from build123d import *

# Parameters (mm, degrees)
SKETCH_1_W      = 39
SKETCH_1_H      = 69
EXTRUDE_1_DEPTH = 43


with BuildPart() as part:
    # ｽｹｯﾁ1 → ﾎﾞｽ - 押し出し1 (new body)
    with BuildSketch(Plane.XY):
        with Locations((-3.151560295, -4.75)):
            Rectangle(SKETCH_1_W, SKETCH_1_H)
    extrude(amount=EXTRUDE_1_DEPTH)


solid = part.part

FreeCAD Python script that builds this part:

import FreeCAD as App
import Part
import Sketcher

V = App.Vector

doc = App.newDocument("Part")
body = doc.addObject("PartDesign::Body", "Body")

# Sketch on XY plane
sketch1 = doc.addObject("Sketcher::SketchObject", "Sketch")
body.addObject(sketch1)
sketch1.AttachmentSupport = (doc.XY_Plane, [""])
sketch1.MapMode = "FlatFace"
sketch1.addGeometry([
    Part.LineSegment(V(-23, 30, 0), V(-23, -39, 0)),
    Part.LineSegment(V(-23, -39, 0), V(16, -39, 0)),
    Part.LineSegment(V(16, -39, 0), V(16, 30, 0)),
    Part.LineSegment(V(16, 30, 0), V(-23, 30, 0)),
], False)
sketch1.addConstraint([
    Sketcher.Constraint("Coincident", 0, 2, 1, 1),
    Sketcher.Constraint("Coincident", 1, 2, 2, 1),
    Sketcher.Constraint("Coincident", 2, 2, 3, 1),
    Sketcher.Constraint("Coincident", 3, 2, 0, 1),
    Sketcher.Constraint("Vertical", 0),
    Sketcher.Constraint("Horizontal", 1),
    Sketcher.Constraint("Vertical", 2),
    Sketcher.Constraint("Horizontal", 3),
    Sketcher.Constraint("DistanceX", 1, 1, 1, 2, 39.0),
    Sketcher.Constraint("DistanceY", 0, 2, 0, 1, 69.0),
    Sketcher.Constraint("DistanceY", 0, 2, -1, 1, 39.25),
    Sketcher.Constraint("DistanceX", 0, 2, -1, 1, 22.65156),
])
pad1 = doc.addObject("PartDesign::Pad", "Pad")
body.addObject(pad1)
pad1.Profile = sketch1
pad1.Length = 43

doc.recompute()
